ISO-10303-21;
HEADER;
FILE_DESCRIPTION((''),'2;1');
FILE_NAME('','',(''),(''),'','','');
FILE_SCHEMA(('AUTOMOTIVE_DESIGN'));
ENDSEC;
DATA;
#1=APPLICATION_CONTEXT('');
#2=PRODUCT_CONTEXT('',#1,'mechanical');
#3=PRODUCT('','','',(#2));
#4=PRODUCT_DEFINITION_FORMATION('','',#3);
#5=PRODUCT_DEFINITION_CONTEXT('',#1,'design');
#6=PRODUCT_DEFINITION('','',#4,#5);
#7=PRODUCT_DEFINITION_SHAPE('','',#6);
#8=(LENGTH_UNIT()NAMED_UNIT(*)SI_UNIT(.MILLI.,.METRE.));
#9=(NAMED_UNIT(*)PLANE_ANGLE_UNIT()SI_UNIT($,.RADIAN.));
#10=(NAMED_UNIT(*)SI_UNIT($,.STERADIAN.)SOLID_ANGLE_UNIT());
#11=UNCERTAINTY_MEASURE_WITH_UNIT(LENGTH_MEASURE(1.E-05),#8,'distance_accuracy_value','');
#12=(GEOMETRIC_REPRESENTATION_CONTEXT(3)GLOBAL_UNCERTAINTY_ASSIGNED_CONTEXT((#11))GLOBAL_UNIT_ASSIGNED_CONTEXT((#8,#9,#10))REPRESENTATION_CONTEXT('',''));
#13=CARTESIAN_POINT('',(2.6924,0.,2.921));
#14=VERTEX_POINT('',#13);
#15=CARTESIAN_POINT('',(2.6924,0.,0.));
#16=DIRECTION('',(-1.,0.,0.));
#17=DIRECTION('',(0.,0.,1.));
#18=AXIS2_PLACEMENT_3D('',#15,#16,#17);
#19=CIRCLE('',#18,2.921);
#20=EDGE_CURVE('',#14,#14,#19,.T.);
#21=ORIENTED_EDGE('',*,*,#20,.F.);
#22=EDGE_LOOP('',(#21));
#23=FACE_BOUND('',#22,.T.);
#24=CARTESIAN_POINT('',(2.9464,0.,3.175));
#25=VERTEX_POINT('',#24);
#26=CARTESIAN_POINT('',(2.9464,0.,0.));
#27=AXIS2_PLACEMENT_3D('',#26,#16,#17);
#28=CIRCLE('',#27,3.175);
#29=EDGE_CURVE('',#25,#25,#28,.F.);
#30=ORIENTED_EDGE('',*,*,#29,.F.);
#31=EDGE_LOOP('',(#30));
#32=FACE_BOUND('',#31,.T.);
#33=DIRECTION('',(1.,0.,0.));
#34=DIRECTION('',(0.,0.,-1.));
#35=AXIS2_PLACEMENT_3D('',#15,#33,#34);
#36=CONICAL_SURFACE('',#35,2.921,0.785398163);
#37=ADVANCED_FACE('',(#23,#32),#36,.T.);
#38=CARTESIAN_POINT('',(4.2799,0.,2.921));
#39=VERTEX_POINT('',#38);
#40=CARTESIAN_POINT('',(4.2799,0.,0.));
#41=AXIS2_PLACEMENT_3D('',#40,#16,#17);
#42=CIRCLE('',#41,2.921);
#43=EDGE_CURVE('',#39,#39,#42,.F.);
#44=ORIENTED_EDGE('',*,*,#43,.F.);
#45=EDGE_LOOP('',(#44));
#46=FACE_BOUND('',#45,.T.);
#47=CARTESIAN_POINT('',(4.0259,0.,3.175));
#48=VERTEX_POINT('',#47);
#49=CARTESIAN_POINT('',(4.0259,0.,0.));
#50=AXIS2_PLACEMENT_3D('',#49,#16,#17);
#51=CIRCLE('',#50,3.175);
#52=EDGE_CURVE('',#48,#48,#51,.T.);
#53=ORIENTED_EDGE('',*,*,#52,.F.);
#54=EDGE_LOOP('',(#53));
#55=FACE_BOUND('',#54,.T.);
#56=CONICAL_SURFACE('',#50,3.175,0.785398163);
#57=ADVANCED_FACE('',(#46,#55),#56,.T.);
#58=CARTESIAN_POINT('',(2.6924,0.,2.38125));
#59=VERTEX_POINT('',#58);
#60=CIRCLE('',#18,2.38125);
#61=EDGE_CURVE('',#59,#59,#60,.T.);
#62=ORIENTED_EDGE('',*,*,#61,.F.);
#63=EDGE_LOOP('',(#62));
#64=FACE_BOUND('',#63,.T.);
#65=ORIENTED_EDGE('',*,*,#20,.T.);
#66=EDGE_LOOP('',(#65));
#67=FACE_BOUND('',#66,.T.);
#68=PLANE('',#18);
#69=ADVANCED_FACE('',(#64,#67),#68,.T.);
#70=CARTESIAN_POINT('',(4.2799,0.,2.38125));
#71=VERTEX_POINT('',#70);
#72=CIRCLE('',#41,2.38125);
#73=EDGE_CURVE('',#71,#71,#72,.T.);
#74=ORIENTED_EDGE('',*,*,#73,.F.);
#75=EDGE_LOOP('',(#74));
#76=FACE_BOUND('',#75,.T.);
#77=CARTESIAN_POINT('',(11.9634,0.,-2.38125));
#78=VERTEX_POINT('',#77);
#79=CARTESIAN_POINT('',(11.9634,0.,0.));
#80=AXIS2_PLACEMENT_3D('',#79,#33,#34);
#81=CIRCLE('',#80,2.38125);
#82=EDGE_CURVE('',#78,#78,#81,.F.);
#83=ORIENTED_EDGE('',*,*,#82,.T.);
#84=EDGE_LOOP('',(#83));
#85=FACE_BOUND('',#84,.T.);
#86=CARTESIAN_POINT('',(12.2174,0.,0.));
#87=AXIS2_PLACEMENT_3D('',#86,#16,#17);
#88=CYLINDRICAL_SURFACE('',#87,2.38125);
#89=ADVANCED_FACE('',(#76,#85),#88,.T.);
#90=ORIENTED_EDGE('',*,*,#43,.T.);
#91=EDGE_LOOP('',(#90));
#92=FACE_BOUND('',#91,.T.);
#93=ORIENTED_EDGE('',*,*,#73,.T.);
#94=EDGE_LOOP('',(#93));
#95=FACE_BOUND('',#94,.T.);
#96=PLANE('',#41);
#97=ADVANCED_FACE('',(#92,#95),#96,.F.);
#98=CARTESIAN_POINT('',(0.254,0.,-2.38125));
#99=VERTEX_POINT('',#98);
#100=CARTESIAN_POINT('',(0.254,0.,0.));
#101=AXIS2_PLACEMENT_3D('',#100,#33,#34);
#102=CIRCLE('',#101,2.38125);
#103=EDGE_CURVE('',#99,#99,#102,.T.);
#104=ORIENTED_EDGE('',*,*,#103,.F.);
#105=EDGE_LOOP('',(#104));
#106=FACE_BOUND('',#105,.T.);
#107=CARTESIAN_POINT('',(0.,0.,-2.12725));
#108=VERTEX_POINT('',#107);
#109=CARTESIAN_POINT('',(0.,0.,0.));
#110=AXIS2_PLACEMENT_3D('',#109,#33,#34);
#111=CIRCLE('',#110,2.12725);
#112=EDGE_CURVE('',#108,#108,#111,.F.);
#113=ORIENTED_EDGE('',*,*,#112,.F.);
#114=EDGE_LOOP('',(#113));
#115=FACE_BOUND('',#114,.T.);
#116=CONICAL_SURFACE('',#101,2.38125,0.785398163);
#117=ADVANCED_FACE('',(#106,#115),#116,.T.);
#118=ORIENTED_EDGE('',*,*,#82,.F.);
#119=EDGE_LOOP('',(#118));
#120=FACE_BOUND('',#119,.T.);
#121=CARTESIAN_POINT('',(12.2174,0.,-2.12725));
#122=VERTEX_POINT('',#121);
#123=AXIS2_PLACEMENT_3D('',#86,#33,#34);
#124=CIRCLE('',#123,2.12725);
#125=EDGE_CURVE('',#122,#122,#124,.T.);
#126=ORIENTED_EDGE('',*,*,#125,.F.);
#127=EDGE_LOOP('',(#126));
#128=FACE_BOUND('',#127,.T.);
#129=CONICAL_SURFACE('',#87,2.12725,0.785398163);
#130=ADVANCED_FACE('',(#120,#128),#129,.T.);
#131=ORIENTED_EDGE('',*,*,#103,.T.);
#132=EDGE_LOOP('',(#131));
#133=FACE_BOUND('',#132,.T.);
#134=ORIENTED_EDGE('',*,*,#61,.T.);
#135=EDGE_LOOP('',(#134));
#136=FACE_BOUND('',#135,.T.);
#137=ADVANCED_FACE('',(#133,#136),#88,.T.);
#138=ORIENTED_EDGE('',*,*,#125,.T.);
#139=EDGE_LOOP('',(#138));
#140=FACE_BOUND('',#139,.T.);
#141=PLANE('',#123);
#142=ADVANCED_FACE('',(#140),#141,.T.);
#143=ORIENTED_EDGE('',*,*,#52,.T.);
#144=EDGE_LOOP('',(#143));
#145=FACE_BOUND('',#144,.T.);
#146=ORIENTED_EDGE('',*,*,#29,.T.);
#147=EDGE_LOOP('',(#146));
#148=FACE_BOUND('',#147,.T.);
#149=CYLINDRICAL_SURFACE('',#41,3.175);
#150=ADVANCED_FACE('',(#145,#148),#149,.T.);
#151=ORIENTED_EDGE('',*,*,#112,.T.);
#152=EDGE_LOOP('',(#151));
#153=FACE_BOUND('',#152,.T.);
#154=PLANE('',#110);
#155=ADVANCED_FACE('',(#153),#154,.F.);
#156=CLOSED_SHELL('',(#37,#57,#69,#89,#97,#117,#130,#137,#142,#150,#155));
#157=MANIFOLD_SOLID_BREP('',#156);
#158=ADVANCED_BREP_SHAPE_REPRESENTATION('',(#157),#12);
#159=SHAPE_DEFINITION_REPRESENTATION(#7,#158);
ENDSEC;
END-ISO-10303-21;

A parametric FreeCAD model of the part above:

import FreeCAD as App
import Part
import Sketcher
from FreeCAD import Vector
Q = App.Units.Quantity


def edges_at(feature, points):
    """Names of the edges that pass closest to the given points."""
    edges = feature.Shape.Edges
    near = lambda p: min(range(len(edges)), key=lambda i: edges[i].distToShape(Part.Vertex(*p))[0])
    return sorted({f"Edge{near(p) + 1}" for p in points})

doc = App.newDocument("Part")
params = doc.addObject("Spreadsheet::Sheet", "Params")
for row, (alias, value) in enumerate([
    ("sketch1_diameter", "0.1875 in"),
    ("pad1_length", "0.481 in"),
    ("sketch2_diameter", "0.25 in"),
    ("pad2_length", "0.0625 in"),
    ("chamfer_size", "0.01 in"),
], start=1):
    params.set(f"A{row}", alias)
    params.set(f"B{row}", "=" + value)
    params.setAlias(f"B{row}", alias)

body = doc.addObject("PartDesign::Body", "Body")

# Sketch on YZ plane
sketch1 = body.newObject("Sketcher::SketchObject", "Sketch")
sketch1.AttachmentSupport = (doc.getObject("YZ_Plane"), [""])
sketch1.MapMode = "FlatFace"
sketch1.addGeometry(Part.Circle(Vector(0, 0, 0), Vector(0, 0, 1), 2.38125), False)
sketch1.addConstraint([
    Sketcher.Constraint("Coincident", 0, 3, -1, 1),
    Sketcher.Constraint("Diameter", 0, Q("0.1875 in")),
])
sketch1.setExpression("Constraints[1]", "Params.sketch1_diameter")
pad1 = body.newObject("PartDesign::Pad", "Pad")
pad1.Profile = sketch1
pad1.setExpression("Length", "Params.pad1_length")

# Sketch on YZ plane
sketch2 = body.newObject("Sketcher::SketchObject", "Sketch001")
sketch2.AttachmentSupport = (doc.getObject("YZ_Plane"), [""])
sketch2.MapMode = "FlatFace"
sketch2.AttachmentOffset = App.Placement(Vector(0, 0, 0.106 * 25.4), App.Rotation())
sketch2.addGeometry(Part.Circle(Vector(0, 0, 0), Vector(0, 0, 1), 3.175), False)
sketch2.addConstraint([
    Sketcher.Constraint("Coincident", 0, 3, -1, 1),
    Sketcher.Constraint("Diameter", 0, Q("0.25 in")),
])
sketch2.setExpression("Constraints[1]", "Params.sketch2_diameter")
pad2 = body.newObject("PartDesign::Pad", "Pad001")
pad2.Profile = sketch2
pad2.setExpression("Length", "Params.pad2_length")
doc.recompute()

chamfer = body.newObject("PartDesign::Chamfer", "Chamfer")
chamfer.Base = (pad2, edges_at(pad2, [
    (0, 0, 2.381),
    (12.217, 0, 2.381),
    (2.692, 0, -3.175),
    (4.28, 0, -3.175),
]))
chamfer.setExpression("Size", "Params.chamfer_size")

doc.recompute()
